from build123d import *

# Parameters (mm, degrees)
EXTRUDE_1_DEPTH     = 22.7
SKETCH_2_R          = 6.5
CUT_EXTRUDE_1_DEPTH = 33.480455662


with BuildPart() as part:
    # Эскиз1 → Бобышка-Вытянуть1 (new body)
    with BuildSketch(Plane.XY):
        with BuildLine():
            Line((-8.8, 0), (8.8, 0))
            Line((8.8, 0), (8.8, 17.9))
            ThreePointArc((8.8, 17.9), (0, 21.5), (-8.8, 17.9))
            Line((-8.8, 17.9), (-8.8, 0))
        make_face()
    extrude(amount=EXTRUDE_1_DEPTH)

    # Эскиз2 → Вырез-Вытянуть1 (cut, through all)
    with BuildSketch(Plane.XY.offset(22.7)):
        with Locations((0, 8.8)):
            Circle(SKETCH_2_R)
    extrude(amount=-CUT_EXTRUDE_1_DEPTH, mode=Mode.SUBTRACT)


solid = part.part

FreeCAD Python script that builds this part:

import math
import FreeCAD as App
import Part
import Sketcher

V = App.Vector

doc = App.newDocument("Part")
params = doc.addObject("Spreadsheet::Sheet", "Params")
for row, (alias, value) in enumerate([
    ("sketch1_width", "17.6 mm"),
    ("sketch1_height", "17.9 mm"),
    ("pad1_length", "22.7 mm"),
    ("sketch2_diameter", "13 mm"),
], start=1):
    params.set(f"A{row}", alias)
    params.set(f"B{row}", "=" + value)
    params.setAlias(f"B{row}", alias)

body = doc.addObject("PartDesign::Body", "Body")

sketch1 = doc.addObject("Sketcher::SketchObject", "Sketch")
body.addObject(sketch1)
sketch1.AttachmentSupport = (doc.XY_Plane, [""])
sketch1.MapMode = "FlatFace"
sketch1.addGeometry([
    Part.LineSegment(V(-9, 0, 0), V(9, 0, 0)),
    Part.LineSegment(V(9, 0, 0), V(9, 18, 0)),
    Part.ArcOfCircle(Part.Circle(V(0, 9, 0), V(0, 0, 1), 13), math.radians(46), math.radians(134)),
    Part.LineSegment(V(-9, 18, 0), V(-9, 0, 0)),
], False)
sketch1.addConstraint([
    Sketcher.Constraint("Coincident", 0, 2, 1, 1),
    Sketcher.Constraint("Coincident", 1, 2, 2, 1),
    Sketcher.Constraint("Coincident", 2, 2, 3, 1),
    Sketcher.Constraint("Coincident", 3, 2, 0, 1),
    Sketcher.Constraint("Horizontal", 0),
    Sketcher.Constraint("Vertical", 1),
    Sketcher.Constraint("Vertical", 3),
    Sketcher.Constraint("Symmetric", 0, 2, 3, 2, -1, 1),
    Sketcher.Constraint("PointOnObject", 2, 3, -2),
    Sketcher.Constraint("DistanceX", 0, 1, 0, 2, 17.6),
    Sketcher.Constraint("DistanceY", 1, 1, 1, 2, 17.9),
    Sketcher.Constraint("Radius", 2, 12.555556),
])
sketch1.setExpression("Constraints[9]", "Params.sketch1_width")
sketch1.setExpression("Constraints[10]", "Params.sketch1_height")
pad1 = doc.addObject("PartDesign::Pad", "Pad")
body.addObject(pad1)
pad1.Profile = sketch1
pad1.setExpression("Length", "Params.pad1_length")

sketch2 = doc.addObject("Sketcher::SketchObject", "Sketch001")
body.addObject(sketch2)
sketch2.AttachmentSupport = (doc.XY_Plane, [""])
sketch2.MapMode = "FlatFace"
sketch2.AttachmentOffset = App.Placement(V(0, 0, 22.7), App.Rotation())
sketch2.addGeometry(Part.Circle(V(0, 9, 0), V(0, 0, 1), 6), False)
sketch2.addConstraint([
    Sketcher.Constraint("PointOnObject", 0, 3, -2),
    Sketcher.Constraint("Diameter", 0, 13.0),
    Sketcher.Constraint("DistanceY", -1, 1, 0, 3, 8.8),
])
sketch2.setExpression("Constraints[1]", "Params.sketch2_diameter")
pocket1 = doc.addObject("PartDesign::Pocket", "Pocket")
body.addObject(pocket1)
pocket1.Profile = sketch2
pocket1.Type = "ThroughAll"

doc.recompute()
